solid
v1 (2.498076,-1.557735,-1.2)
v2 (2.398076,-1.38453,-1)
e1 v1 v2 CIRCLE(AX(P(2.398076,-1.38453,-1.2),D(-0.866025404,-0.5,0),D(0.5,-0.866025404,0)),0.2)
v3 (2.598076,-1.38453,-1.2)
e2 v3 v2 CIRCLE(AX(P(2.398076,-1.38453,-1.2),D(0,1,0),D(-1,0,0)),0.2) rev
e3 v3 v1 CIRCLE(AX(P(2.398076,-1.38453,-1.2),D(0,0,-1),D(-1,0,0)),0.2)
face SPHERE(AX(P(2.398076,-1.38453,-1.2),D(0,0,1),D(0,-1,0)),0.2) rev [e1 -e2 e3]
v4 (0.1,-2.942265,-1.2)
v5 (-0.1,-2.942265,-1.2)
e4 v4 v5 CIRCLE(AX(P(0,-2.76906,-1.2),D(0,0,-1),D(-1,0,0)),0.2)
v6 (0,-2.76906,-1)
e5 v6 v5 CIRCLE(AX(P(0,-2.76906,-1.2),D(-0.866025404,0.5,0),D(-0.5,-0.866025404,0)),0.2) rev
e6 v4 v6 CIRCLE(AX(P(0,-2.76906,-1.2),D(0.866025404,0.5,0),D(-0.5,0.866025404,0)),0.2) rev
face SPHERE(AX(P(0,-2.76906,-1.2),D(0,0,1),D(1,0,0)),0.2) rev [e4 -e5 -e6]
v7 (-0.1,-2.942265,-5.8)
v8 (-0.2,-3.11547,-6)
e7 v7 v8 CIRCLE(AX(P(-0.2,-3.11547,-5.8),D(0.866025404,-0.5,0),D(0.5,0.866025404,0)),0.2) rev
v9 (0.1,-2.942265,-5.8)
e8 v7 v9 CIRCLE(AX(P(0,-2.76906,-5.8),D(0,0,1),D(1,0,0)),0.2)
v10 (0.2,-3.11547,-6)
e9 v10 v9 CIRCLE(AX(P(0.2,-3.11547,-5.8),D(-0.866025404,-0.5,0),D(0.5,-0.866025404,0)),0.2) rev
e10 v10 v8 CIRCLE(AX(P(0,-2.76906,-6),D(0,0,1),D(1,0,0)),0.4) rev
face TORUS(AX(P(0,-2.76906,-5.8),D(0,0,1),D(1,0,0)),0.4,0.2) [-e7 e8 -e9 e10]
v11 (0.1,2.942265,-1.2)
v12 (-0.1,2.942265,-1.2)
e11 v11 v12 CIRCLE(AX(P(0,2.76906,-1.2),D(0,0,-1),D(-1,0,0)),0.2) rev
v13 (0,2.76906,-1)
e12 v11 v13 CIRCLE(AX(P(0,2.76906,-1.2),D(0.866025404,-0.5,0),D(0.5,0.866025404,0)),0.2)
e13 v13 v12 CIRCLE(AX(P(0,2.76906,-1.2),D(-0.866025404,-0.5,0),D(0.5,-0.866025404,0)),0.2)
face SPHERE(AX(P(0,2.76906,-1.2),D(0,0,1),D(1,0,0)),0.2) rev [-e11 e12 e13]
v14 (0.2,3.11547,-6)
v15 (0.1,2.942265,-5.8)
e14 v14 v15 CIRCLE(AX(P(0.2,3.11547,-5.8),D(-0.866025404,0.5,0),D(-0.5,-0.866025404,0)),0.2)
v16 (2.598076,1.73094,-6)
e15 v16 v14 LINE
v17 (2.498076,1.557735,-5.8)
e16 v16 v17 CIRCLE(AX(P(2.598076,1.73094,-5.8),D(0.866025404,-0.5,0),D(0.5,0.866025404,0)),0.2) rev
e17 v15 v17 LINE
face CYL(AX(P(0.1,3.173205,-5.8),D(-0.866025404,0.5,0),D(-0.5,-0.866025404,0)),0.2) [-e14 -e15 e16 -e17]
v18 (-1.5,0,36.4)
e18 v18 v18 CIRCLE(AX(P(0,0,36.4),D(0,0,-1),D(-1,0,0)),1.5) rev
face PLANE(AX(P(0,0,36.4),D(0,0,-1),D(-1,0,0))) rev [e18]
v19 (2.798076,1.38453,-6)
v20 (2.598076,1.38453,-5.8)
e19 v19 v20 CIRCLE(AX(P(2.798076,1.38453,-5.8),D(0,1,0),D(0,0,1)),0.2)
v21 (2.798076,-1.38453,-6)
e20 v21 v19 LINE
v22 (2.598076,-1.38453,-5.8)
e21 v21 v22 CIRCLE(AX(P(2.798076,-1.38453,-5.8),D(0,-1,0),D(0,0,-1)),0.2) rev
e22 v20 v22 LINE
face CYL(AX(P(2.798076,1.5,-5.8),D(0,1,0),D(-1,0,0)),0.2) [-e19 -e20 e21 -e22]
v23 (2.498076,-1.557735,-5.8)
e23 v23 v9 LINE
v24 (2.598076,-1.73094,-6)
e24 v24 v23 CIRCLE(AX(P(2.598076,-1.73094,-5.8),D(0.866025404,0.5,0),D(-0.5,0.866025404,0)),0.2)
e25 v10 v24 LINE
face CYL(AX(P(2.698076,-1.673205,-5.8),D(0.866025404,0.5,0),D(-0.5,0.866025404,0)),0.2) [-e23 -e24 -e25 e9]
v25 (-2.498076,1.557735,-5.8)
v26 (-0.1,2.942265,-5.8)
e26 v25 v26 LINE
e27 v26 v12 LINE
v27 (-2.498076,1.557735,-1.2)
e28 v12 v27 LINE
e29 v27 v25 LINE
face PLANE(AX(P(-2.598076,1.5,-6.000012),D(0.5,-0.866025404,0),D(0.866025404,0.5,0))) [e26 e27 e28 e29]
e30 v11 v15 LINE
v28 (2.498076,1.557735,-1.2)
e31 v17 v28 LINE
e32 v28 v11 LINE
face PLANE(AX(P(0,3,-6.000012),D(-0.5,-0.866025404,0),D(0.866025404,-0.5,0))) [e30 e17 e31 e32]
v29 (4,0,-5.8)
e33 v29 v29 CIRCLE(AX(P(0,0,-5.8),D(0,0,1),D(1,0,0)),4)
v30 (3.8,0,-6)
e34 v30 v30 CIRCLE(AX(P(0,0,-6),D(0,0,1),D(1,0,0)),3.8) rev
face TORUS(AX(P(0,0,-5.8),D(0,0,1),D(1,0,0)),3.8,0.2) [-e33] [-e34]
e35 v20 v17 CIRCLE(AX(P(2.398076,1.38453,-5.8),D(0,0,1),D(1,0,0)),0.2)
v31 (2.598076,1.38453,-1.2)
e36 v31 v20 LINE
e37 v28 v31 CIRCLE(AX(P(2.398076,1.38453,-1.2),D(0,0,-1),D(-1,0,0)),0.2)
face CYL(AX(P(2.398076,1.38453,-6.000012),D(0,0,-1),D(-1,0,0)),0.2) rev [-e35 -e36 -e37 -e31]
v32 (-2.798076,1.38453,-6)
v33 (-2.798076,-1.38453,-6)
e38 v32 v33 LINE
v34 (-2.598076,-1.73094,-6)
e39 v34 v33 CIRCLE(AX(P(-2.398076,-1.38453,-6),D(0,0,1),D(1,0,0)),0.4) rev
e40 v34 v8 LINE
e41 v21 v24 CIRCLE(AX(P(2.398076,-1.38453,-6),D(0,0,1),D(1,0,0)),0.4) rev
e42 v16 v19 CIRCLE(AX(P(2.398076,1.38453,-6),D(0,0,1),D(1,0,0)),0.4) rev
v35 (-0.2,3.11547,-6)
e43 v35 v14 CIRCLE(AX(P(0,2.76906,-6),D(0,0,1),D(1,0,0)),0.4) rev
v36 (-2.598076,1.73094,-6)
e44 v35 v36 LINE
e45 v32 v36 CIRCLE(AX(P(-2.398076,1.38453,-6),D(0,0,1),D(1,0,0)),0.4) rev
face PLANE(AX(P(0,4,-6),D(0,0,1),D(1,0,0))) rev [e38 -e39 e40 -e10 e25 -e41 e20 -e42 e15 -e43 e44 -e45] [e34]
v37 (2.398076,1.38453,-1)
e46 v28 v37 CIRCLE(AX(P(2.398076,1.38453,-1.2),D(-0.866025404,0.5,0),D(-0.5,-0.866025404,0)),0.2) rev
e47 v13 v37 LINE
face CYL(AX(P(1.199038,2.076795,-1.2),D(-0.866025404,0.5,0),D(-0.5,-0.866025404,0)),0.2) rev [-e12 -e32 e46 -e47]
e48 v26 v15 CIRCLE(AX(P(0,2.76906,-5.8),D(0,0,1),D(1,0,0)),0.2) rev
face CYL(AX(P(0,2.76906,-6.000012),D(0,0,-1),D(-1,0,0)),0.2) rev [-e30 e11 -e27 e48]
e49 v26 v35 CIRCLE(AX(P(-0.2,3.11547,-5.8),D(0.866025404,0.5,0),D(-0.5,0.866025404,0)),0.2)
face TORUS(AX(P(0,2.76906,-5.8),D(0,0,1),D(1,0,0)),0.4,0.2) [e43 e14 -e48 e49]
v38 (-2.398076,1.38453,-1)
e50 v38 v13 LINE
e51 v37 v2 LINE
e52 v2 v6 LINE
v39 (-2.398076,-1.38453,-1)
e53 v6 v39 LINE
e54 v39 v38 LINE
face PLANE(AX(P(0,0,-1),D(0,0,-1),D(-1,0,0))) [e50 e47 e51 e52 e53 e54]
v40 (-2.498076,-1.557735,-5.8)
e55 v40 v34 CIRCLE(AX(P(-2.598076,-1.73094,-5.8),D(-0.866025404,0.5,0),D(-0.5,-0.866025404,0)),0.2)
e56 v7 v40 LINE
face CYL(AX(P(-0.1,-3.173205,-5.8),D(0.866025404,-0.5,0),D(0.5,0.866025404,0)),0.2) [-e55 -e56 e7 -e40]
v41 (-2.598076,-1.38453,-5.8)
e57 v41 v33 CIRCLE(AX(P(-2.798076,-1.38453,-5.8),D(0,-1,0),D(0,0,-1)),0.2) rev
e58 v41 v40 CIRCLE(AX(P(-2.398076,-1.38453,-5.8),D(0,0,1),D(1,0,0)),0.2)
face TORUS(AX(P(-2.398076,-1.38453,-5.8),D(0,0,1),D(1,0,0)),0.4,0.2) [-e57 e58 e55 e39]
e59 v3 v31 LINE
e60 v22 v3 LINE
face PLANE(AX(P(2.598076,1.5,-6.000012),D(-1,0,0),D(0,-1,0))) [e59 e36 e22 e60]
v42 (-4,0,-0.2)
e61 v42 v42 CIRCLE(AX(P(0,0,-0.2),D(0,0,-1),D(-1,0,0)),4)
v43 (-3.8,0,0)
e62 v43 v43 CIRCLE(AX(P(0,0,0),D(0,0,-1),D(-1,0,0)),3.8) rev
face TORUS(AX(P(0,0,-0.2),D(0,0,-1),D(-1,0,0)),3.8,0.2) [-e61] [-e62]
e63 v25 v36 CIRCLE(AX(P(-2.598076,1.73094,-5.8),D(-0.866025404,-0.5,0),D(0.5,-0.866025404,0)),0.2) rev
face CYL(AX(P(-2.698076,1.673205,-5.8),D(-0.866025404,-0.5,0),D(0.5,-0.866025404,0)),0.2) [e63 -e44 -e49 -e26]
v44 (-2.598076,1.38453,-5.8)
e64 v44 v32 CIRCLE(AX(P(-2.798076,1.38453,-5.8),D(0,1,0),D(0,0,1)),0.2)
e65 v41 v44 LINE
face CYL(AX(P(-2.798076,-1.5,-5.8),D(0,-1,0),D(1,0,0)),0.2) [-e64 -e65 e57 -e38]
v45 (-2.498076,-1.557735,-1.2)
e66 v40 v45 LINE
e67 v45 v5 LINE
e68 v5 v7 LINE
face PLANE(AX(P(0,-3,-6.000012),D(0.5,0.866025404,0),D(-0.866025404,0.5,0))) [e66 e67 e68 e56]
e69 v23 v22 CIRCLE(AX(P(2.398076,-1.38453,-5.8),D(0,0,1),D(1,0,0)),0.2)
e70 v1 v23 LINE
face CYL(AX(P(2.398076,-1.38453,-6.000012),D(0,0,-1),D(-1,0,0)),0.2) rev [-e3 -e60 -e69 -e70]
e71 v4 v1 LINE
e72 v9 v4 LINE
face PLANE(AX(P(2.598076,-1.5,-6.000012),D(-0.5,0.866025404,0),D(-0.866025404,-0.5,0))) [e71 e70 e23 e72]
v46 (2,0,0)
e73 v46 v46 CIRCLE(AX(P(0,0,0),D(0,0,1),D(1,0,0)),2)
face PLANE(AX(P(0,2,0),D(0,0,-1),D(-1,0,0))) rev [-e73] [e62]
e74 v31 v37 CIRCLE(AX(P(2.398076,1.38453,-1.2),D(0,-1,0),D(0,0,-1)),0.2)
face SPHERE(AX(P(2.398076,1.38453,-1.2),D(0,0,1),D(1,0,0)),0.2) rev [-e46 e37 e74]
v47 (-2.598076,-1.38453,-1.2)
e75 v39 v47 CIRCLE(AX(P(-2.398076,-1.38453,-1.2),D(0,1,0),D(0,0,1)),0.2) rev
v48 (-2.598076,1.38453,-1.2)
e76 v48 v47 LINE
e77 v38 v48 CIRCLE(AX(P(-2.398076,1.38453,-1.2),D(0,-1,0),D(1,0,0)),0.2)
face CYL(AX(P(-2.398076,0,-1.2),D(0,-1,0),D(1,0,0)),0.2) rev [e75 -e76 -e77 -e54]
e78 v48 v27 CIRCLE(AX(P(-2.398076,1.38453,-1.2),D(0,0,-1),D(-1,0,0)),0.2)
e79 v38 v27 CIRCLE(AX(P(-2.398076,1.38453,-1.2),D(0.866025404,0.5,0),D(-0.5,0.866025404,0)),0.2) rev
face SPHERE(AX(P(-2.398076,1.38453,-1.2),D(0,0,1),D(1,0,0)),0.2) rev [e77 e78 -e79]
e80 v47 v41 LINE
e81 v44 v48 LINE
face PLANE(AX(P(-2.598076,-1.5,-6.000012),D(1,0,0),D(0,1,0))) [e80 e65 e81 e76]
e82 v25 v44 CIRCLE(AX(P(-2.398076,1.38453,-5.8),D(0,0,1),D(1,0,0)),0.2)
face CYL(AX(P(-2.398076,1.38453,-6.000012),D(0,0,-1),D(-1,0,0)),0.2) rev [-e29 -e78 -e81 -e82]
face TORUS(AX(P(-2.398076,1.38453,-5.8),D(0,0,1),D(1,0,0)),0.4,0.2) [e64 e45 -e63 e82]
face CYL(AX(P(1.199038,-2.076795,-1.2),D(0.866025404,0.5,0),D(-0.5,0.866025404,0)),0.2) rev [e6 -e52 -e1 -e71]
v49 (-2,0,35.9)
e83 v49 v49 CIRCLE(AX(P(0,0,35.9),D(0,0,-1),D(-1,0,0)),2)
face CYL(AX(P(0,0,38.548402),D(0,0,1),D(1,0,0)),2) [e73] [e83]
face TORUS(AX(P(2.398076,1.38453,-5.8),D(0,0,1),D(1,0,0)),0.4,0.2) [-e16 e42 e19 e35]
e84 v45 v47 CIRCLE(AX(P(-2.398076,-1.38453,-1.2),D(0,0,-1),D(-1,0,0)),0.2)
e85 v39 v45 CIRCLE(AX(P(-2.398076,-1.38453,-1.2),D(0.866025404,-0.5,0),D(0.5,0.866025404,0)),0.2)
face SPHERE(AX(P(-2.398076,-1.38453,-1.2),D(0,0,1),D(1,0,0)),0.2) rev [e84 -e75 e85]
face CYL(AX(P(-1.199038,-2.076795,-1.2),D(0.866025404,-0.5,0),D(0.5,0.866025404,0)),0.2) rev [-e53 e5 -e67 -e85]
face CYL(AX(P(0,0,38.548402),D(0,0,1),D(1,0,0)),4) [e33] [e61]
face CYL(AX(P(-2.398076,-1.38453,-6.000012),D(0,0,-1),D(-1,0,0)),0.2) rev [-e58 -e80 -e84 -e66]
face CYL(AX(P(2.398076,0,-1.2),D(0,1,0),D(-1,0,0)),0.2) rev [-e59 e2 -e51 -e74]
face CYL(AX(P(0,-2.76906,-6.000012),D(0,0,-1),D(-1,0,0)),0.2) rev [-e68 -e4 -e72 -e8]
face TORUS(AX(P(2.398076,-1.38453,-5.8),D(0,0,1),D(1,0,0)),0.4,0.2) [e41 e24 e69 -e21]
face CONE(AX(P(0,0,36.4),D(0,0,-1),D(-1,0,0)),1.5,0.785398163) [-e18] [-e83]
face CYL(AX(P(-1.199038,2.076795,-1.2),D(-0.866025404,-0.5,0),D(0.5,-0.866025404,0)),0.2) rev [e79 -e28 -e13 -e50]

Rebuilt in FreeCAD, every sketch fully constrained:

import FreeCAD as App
import Part
import Sketcher
Q = App.Units.Quantity


def edges_at(feature, points):
    """Names of the edges that pass closest to the given points."""
    edges = feature.Shape.Edges
    near = lambda p: min(range(len(edges)), key=lambda i: edges[i].distToShape(Part.Vertex(*p))[0])
    return sorted({f"Edge{near(p) + 1}" for p in points})


def add_polygon(sketch, points):
    """Adds a closed chain of lines whose ends are joined by coincident constraints."""
    first, n = sketch.GeometryCount, len(points)
    for a, b in zip(points, points[1:] + points[:1]):
        sketch.addGeometry(Part.LineSegment(App.Vector(*a, 0), App.Vector(*b, 0)), False)
    for i in range(n):
        sketch.addConstraint(Sketcher.Constraint("Coincident", first + i, 2, first + (i + 1) % n, 1))

doc = App.newDocument("Part")
body = doc.addObject("PartDesign::Body", "Body")

sketch1 = doc.addObject("Sketcher::SketchObject", "Sketch")
body.addObject(sketch1)
sketch1.AttachmentSupport = (doc.YZ_Plane, [""])
sketch1.MapMode = "FlatFace"
add_polygon(sketch1, [(2, 36.4), (0, 36.4), (0, -6), (4, -6), (4, 0), (2, 0)])
sketch1.addConstraint(Sketcher.Constraint("Horizontal", 0))
sketch1.addConstraint(Sketcher.Constraint("Vertical", 1))
sketch1.addConstraint(Sketcher.Constraint("Horizontal", 2))
sketch1.addConstraint(Sketcher.Constraint("Vertical", 3))
sketch1.addConstraint(Sketcher.Constraint("Horizontal", 4))
sketch1.addConstraint(Sketcher.Constraint("Vertical", 5))
sketch1.addConstraint(Sketcher.Constraint("PointOnObject", 0, 2, -2))
sketch1.addConstraint(Sketcher.Constraint("PointOnObject", 3, 2, -1))
sketch1.addConstraint(Sketcher.Constraint("Equal", 0, 4))
sketch1.addConstraint(Sketcher.Constraint("DistanceX", 0, 2, 0, 1, 2.0))
sketch1.addConstraint(Sketcher.Constraint("DistanceY", 3, 1, 3, 2, 6.0))
sketch1.addConstraint(Sketcher.Constraint("DistanceY", 1, 2, 1, 1, 42.4))
revolution = doc.addObject("PartDesign::Revolution", "Revolution")
body.addObject(revolution)
revolution.Profile = sketch1
revolution.ReferenceAxis = (sketch1, ["V_Axis"])
revolution.Angle = 360
doc.recompute()

chamfer = doc.addObject("PartDesign::Chamfer", "Chamfer")
body.addObject(chamfer)
chamfer.Base = (revolution, edges_at(revolution, [(-2, 0, 36.4)]))
chamfer.Size = 0.5
doc.recompute()

fillet = doc.addObject("PartDesign::Fillet", "Fillet")
body.addObject(fillet)
fillet.Base = (chamfer, edges_at(chamfer, [(-4, 0, -6), (-4, 0, 0)]))
fillet.Radius = 0.2

sketch2 = doc.addObject("Sketcher::SketchObject", "Sketch001")
body.addObject(sketch2)
sketch2.AttachmentSupport = (doc.XY_Plane, [""])
sketch2.MapMode = "FlatFace"
sketch2.AttachmentOffset = App.Placement(App.Vector(0, 0, -6), App.Rotation())
add_polygon(sketch2, [(0, 3), (2.598076, 1.5), (2.598076, -1.5), (0, -3), (-2.598076, -1.5), (-2.598076, 1.5)])
sketch2.addConstraint(Sketcher.Constraint("Vertical", 1))
sketch2.addConstraint(Sketcher.Constraint("Vertical", 4))
sketch2.addConstraint(Sketcher.Constraint("Symmetric", 0, 2, 3, 2, -1, 1))
sketch2.addConstraint(Sketcher.Constraint("Symmetric", 2, 2, 5, 2, -1, 1))
sketch2.addConstraint(Sketcher.Constraint("PointOnObject", 2, 2, -2))
sketch2.addConstraint(Sketcher.Constraint("Parallel", 2, 5))
sketch2.addConstraint(Sketcher.Constraint("Horizontal", 1, 2, 3, 2))
sketch2.addConstraint(Sketcher.Constraint("DistanceY", 1, 2, 1, 1, 3.0))
sketch2.addConstraint(Sketcher.Constraint("Angle", 0, Q("-30 deg")))
sketch2.addConstraint(Sketcher.Constraint("Distance", 0, 3.0))
pocket1 = doc.addObject("PartDesign::Pocket", "Pocket")
body.addObject(pocket1)
pocket1.Profile = sketch2
pocket1.Type = "TwoLengths"
pocket1.Length = 43.775694
pocket1.Length2 = 5
doc.recompute()

fillet2 = doc.addObject("PartDesign::Fillet", "Fillet001")
body.addObject(fillet2)
fillet2.Base = (pocket1, edges_at(pocket1, [
    (-2.598, 1.5, -3.5),
    (-1.299, 2.25, -1),
    (0, 3, -3.5),
    (1.299, 2.25, -1),
    (2.598, 1.5, -3.5),
    (2.598, 0, -1),
    (2.598, -1.5, -3.5),
    (1.299, -2.25, -1),
    (0, -3, -3.5),
    (-1.299, -2.25, -1),
    (-2.598, -1.5, -3.5),
    (-2.598, 0, -1),
    (-1.299, 2.25, -6),
    (1.299, 2.25, -6),
    (2.598, 0, -6),
    (1.299, -2.25, -6),
    (-1.299, -2.25, -6),
    (-2.598, 0, -6),
]))
fillet2.Radius = 0.2

doc.recompute()
